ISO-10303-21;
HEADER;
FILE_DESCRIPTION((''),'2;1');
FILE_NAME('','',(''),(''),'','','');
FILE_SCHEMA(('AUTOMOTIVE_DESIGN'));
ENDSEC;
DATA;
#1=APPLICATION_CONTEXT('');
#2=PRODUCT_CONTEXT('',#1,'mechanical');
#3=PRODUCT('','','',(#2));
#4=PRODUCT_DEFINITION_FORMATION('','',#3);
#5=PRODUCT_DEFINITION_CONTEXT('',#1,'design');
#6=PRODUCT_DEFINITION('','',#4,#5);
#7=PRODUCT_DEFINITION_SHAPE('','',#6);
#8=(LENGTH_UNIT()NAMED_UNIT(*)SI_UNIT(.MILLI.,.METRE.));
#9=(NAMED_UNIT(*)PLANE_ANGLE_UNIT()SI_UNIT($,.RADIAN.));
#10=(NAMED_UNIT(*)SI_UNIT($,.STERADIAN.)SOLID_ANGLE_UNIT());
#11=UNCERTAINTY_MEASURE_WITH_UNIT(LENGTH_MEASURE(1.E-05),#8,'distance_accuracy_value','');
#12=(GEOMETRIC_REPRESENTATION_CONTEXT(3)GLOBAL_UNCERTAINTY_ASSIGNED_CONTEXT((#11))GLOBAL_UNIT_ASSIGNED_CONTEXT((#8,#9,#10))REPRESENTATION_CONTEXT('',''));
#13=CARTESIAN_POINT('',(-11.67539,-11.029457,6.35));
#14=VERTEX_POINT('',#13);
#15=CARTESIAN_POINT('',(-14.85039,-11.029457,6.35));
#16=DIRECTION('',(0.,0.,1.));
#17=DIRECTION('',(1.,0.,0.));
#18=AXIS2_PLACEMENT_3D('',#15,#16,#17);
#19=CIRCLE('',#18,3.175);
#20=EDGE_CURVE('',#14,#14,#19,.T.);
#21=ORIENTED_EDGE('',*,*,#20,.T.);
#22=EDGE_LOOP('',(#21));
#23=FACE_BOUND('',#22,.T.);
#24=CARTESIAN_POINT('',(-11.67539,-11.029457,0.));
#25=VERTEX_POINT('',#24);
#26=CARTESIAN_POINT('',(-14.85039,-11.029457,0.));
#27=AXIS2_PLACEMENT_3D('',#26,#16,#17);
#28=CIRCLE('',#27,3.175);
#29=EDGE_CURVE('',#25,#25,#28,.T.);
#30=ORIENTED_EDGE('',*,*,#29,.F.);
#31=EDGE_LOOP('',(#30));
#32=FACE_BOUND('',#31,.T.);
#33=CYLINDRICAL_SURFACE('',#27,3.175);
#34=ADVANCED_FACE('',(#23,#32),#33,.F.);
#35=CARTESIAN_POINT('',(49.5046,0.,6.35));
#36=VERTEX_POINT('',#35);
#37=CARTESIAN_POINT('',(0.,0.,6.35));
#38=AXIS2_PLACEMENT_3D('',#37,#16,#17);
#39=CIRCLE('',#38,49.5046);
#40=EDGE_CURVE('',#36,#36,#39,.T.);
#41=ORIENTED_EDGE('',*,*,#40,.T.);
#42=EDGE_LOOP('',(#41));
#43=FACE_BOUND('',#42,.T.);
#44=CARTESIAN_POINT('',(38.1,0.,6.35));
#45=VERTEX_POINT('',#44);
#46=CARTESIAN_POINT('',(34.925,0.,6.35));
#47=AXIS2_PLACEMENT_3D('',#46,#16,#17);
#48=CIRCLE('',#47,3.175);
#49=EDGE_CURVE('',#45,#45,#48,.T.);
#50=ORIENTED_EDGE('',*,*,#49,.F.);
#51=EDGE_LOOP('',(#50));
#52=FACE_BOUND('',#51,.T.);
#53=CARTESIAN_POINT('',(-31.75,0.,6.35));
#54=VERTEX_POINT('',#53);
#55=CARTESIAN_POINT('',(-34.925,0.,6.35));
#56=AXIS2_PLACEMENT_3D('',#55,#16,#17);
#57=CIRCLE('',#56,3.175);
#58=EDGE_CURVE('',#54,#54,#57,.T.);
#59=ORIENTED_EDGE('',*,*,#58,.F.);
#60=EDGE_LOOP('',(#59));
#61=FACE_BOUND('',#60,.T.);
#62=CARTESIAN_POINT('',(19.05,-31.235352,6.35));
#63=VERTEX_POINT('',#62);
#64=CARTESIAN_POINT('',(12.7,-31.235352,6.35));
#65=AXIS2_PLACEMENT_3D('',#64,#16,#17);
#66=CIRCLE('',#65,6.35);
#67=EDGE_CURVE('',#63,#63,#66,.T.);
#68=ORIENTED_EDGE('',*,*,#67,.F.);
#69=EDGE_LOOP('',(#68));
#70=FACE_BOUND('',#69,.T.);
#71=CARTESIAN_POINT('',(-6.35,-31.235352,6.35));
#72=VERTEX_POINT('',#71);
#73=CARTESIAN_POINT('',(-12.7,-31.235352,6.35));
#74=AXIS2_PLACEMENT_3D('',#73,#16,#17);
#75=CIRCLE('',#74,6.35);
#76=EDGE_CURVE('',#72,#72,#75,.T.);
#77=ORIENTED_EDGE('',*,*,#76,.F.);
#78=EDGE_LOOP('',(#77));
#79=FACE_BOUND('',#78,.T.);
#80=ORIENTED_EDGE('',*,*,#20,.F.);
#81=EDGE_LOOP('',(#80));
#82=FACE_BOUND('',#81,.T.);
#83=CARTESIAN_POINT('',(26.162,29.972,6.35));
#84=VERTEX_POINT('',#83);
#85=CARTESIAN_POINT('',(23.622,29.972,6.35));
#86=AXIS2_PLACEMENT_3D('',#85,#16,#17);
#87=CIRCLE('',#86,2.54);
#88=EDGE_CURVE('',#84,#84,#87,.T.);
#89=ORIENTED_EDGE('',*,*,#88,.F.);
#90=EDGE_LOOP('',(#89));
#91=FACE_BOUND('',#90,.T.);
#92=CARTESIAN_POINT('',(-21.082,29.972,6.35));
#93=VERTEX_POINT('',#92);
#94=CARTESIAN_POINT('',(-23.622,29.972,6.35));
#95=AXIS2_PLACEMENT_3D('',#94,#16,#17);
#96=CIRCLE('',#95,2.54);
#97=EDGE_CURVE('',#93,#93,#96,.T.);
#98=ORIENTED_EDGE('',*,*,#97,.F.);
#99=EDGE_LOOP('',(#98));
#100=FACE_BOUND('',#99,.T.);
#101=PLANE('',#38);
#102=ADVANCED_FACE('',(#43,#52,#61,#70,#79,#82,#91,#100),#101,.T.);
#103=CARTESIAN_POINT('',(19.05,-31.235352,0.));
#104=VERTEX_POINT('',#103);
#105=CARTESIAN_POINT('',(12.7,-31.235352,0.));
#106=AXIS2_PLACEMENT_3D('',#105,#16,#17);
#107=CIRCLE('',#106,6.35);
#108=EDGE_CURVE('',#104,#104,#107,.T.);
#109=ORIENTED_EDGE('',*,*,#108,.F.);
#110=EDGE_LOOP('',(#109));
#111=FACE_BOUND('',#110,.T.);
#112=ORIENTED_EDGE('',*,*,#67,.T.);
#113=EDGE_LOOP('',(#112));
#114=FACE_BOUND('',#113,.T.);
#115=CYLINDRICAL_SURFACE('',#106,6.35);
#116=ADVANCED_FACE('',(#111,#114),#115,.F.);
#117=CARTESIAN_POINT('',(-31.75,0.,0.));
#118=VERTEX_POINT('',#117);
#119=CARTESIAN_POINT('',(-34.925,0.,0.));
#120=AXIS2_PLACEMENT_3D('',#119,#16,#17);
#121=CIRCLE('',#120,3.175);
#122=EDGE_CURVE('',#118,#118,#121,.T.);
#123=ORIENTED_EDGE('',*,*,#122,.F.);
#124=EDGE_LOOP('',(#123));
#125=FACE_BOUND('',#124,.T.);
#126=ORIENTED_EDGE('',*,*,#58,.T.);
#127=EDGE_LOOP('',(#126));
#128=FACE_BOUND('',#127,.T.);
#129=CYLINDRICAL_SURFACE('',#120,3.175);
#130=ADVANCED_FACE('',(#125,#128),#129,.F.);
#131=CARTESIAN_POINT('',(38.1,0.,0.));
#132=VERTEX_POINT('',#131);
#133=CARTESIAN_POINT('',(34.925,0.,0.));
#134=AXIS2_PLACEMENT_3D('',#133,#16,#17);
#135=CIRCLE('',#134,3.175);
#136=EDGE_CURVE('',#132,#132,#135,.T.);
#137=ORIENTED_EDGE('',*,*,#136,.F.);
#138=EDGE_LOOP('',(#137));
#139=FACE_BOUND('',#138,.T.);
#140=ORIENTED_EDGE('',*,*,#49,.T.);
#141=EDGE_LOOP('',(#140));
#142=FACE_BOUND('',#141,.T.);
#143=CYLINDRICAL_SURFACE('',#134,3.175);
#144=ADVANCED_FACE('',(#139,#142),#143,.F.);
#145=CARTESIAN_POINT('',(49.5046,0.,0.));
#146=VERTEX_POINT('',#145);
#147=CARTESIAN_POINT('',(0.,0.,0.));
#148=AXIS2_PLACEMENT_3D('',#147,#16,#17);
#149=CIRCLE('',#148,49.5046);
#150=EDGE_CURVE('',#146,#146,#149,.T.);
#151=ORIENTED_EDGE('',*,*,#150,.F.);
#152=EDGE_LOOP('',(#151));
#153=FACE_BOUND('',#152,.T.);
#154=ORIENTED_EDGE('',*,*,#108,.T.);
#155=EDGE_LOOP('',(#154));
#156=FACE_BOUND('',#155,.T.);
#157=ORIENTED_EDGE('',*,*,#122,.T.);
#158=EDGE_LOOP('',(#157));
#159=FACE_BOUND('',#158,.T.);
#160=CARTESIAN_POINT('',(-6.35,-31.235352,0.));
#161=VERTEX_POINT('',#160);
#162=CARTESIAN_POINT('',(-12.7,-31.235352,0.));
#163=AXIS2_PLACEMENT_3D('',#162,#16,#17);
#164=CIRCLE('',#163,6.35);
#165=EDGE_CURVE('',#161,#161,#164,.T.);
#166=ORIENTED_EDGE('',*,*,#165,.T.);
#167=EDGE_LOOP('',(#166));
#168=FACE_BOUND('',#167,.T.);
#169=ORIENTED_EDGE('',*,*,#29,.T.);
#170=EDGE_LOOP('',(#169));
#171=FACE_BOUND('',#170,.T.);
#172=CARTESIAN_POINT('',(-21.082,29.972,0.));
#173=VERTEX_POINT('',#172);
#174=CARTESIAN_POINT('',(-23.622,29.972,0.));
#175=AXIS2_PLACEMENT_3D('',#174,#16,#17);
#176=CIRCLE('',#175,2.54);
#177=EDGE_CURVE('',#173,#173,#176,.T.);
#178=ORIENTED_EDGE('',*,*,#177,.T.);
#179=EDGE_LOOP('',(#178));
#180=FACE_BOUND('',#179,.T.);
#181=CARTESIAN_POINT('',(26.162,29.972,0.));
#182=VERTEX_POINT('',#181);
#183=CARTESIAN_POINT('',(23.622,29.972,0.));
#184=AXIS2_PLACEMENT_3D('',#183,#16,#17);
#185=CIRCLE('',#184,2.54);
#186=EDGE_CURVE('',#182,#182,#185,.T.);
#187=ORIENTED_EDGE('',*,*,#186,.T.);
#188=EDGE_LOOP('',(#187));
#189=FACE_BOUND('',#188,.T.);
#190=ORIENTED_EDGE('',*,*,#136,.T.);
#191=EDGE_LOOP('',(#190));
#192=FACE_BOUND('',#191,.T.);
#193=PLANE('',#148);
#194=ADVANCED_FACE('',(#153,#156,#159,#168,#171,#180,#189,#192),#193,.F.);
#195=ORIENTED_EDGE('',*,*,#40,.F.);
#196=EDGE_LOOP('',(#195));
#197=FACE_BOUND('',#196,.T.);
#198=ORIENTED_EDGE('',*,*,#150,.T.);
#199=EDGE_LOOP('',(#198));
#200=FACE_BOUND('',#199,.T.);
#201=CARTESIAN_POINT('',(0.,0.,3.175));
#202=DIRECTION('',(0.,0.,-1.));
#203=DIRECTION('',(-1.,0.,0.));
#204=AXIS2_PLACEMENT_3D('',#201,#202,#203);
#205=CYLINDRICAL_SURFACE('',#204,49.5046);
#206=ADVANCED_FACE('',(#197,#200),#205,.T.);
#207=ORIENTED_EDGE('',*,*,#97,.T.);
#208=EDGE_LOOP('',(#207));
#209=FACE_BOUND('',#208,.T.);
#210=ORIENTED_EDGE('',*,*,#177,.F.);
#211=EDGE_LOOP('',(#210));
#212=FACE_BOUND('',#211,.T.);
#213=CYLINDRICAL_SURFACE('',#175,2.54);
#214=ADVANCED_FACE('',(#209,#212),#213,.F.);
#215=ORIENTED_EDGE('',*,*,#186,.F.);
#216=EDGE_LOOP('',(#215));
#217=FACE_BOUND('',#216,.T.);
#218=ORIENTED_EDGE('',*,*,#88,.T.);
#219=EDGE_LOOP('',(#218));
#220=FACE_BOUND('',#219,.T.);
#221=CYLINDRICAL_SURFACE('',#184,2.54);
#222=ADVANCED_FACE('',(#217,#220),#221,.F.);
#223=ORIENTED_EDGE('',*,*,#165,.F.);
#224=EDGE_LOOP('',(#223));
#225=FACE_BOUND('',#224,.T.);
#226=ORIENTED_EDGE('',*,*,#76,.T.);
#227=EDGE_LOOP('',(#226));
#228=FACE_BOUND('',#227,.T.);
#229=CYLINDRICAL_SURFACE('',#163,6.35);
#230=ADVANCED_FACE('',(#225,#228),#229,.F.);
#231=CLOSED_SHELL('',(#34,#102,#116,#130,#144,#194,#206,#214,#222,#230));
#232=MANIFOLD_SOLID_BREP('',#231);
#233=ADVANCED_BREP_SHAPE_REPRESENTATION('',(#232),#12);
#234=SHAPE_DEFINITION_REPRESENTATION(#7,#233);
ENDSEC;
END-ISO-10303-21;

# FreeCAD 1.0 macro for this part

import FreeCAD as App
import Part
import Sketcher

V = App.Vector
Q = App.Units.Quantity

doc = App.newDocument("Part")
params = doc.addObject("Spreadsheet::Sheet", "Params")
for row, (alias, value) in enumerate([
    ("sketch1_diameter", "3.898 in"),
    ("pad1_length", "0.125 in"),
    ("sketch2_diameter", "3.755 in"),
    ("pad2_length", "0.125 in"),
    ("sketch3_diameter", "0.5 in"),
    ("sketch3_diameter2", "0.2 in"),
    ("sketch3_diameter3", "0.25 in"),
    ("sketch3_diameter4", "0.875 in"),
    ("sketch4_diameter", "3.898 in"),
    ("sketch4_diameter2", "3.755 in"),
    ("pad3_length", "0.125 in"),
    ("sketch5_diameter", "0.875 in"),
    ("pad4_length", "0.25 in"),
    ("sketch6_diameter", "0.2 in"),
    ("pad5_length", "0.25 in"),
], start=1):
    params.set(f"A{row}", alias)
    params.set(f"B{row}", "=" + value)
    params.setAlias(f"B{row}", alias)

body = doc.addObject("PartDesign::Body", "Body")

# Sketch on XY plane
sketch1 = body.newObject("Sketcher::SketchObject", "Sketch")
sketch1.AttachmentSupport = (doc.getObject("XY_Plane"), [""])
sketch1.MapMode = "FlatFace"
sketch1.addGeometry(Part.Circle(V(0, 0, 0), V(0, 0, 1), 50), False)
sketch1.addConstraint(Sketcher.Constraint("Coincident", 0, 3, -1, 1))
sketch1.addConstraint(Sketcher.Constraint("Diameter", 0, Q("3.898 in")))
sketch1.setExpression("Constraints[1]", "Params.sketch1_diameter")
pad1 = body.newObject("PartDesign::Pad", "Pad")
pad1.Profile = sketch1
pad1.setExpression("Length", "Params.pad1_length")

# Sketch on XY plane
sketch2 = body.newObject("Sketcher::SketchObject", "Sketch001")
sketch2.AttachmentSupport = (doc.getObject("XY_Plane"), [""])
sketch2.MapMode = "FlatFace"
sketch2.AttachmentOffset = App.Placement(V(0, 0, 0.125 * 25.4), App.Rotation())
sketch2.addGeometry(Part.Circle(V(0, 0, 0), V(0, 0, 1), 48), False)
sketch2.addConstraint(Sketcher.Constraint("Coincident", 0, 3, -1, 1))
sketch2.addConstraint(Sketcher.Constraint("Diameter", 0, Q("3.755 in")))
sketch2.setExpression("Constraints[1]", "Params.sketch2_diameter")
pad2 = body.newObject("PartDesign::Pad", "Pad001")
pad2.Profile = sketch2
pad2.setExpression("Length", "Params.pad2_length")

# Sketch on XY plane
sketch3 = body.newObject("Sketcher::SketchObject", "Sketch002")
sketch3.AttachmentSupport = (doc.getObject("XY_Plane"), [""])
sketch3.MapMode = "FlatFace"
sketch3.AttachmentOffset = App.Placement(V(0, 0, 0.25 * 25.4), App.Rotation())
sketch3.addGeometry(Part.Circle(V(-12.7, -31.2, 0), V(0, 0, 1), 6.3), False)
sketch3.addGeometry(Part.Circle(V(12.7, -31.2, 0), V(0, 0, 1), 6.3), False)
sketch3.addGeometry(Part.Circle(V(-34.9, 0, 0), V(0, 0, 1), 3.2), False)
sketch3.addGeometry(Part.Circle(V(34.9, 0, 0), V(0, 0, 1), 3.2), False)
sketch3.addGeometry(Part.Circle(V(0, 6.3, 0), V(0, 0, 1), 11.1), False)
sketch3.addGeometry(Part.Circle(V(-14.9, -11, 0), V(0, 0, 1), 3.2), False)
sketch3.addGeometry(Part.Circle(V(-23.6, 30, 0), V(0, 0, 1), 2.5), False)
sketch3.addGeometry(Part.Circle(V(23.6, 30, 0), V(0, 0, 1), 2.5), False)
sketch3.addGeometry(Part.Circle(V(23.6, -17.3, 0), V(0, 0, 1), 2.5), False)
sketch3.addGeometry(Part.Circle(V(-23.6, -17.3, 0), V(0, 0, 1), 2.5), False)
sketch3.addConstraint(Sketcher.Constraint("Equal", 0, 1))
sketch3.addConstraint(Sketcher.Constraint("Equal", 2, 3))
sketch3.addConstraint(Sketcher.Constraint("Equal", 3, 5))
sketch3.addConstraint(Sketcher.Constraint("Equal", 6, 7))
sketch3.addConstraint(Sketcher.Constraint("Equal", 7, 8))
sketch3.addConstraint(Sketcher.Constraint("Equal", 8, 9))
sketch3.addConstraint(Sketcher.Constraint("Symmetric", 2, 3, 3, 3, -1, 1))
sketch3.addConstraint(Sketcher.Constraint("Symmetric", 0, 3, 1, 3, -2))
sketch3.addConstraint(Sketcher.Constraint("Symmetric", 6, 3, 7, 3, -2))
sketch3.addConstraint(Sketcher.Constraint("Symmetric", 8, 3, 9, 3, -2))
sketch3.addConstraint(Sketcher.Constraint("PointOnObject", 2, 3, -1))
sketch3.addConstraint(Sketcher.Constraint("PointOnObject", 4, 3, -2))
sketch3.addConstraint(Sketcher.Constraint("Vertical", 7, 3, 8, 3))
sketch3.addConstraint(Sketcher.Constraint("Diameter", 0, Q("0.5 in")))
sketch3.addConstraint(Sketcher.Constraint("Diameter", 6, Q("0.2 in")))
sketch3.addConstraint(Sketcher.Constraint("Diameter", 2, Q("0.25 in")))
sketch3.addConstraint(Sketcher.Constraint("Diameter", 4, Q("0.875 in")))
sketch3.addConstraint(Sketcher.Constraint("DistanceX", 0, 3, 1, 3, Q("1 in")))
sketch3.addConstraint(Sketcher.Constraint("DistanceY", -1, 1, 4, 3, Q("0.25 in")))
sketch3.addConstraint(Sketcher.Constraint("DistanceX", 6, 3, -1, 1, Q("0.93 in")))
sketch3.addConstraint(Sketcher.Constraint("DistanceY", -1, 1, 6, 3, Q("1.18 in")))
sketch3.addConstraint(Sketcher.Constraint("DistanceY", 8, 3, -1, 1, Q("0.68 in")))
sketch3.addConstraint(Sketcher.Constraint("DistanceX", 2, 3, 3, 3, Q("2.75 in")))
sketch3.addConstraint(Sketcher.Constraint("DistanceX", 5, 3, -1, 1, Q("14.85039 mm")))
sketch3.addConstraint(Sketcher.Constraint("DistanceY", 0, 3, -1, 1, Q("31.235352 mm")))
sketch3.addConstraint(Sketcher.Constraint("DistanceY", 5, 3, -1, 1, Q("11.029457 mm")))
sketch3.setExpression("Constraints[13]", "Params.sketch3_diameter")
sketch3.setExpression("Constraints[14]", "Params.sketch3_diameter2")
sketch3.setExpression("Constraints[15]", "Params.sketch3_diameter3")
sketch3.setExpression("Constraints[16]", "Params.sketch3_diameter4")
pocket1 = body.newObject("PartDesign::Pocket", "Pocket")
pocket1.Profile = sketch3
pocket1.Type = "ThroughAll"

# Sketch on XY plane
sketch4 = body.newObject("Sketcher::SketchObject", "Sketch003")
sketch4.AttachmentSupport = (doc.getObject("XY_Plane"), [""])
sketch4.MapMode = "FlatFace"
sketch4.AttachmentOffset = App.Placement(V(0, 0, 0.125 * 25.4), App.Rotation())
sketch4.addGeometry(Part.Circle(V(0, 0, 0), V(0, 0, 1), 50), False)
sketch4.addGeometry(Part.Circle(V(0, 0, 0), V(0, 0, 1), 48), False)
sketch4.addConstraint(Sketcher.Constraint("Coincident", 0, 3, -1, 1))
sketch4.addConstraint(Sketcher.Constraint("Coincident", 1, 3, -1, 1))
sketch4.addConstraint(Sketcher.Constraint("Diameter", 0, Q("3.898 in")))
sketch4.addConstraint(Sketcher.Constraint("Diameter", 1, Q("3.755 in")))
sketch4.setExpression("Constraints[2]", "Params.sketch4_diameter")
sketch4.setExpression("Constraints[3]", "Params.sketch4_diameter2")
pad3 = body.newObject("PartDesign::Pad", "Pad002")
pad3.Profile = sketch4
pad3.setExpression("Length", "Params.pad3_length")

# Sketch on XY plane
sketch5 = body.newObject("Sketcher::SketchObject", "Sketch004")
sketch5.AttachmentSupport = (doc.getObject("XY_Plane"), [""])
sketch5.MapMode = "FlatFace"
sketch5.AttachmentOffset = App.Placement(V(0, 0, 0.25 * 25.4), App.Rotation())
sketch5.addGeometry(Part.Circle(V(0, 6, 0), V(0, 0, 1), 11), False)
sketch5.addConstraint(Sketcher.Constraint("PointOnObject", 0, 3, -2))
sketch5.addConstraint(Sketcher.Constraint("Diameter", 0, Q("0.875 in")))
sketch5.addConstraint(Sketcher.Constraint("DistanceY", -1, 1, 0, 3, Q("0.25 in")))
sketch5.setExpression("Constraints[1]", "Params.sketch5_diameter")
pad4 = body.newObject("PartDesign::Pad", "Pad003")
pad4.Profile = sketch5
pad4.setExpression("Length", "Params.pad4_length")
pad4.Reversed = True

# Sketch on XY plane
sketch6 = body.newObject("Sketcher::SketchObject", "Sketch005")
sketch6.AttachmentSupport = (doc.getObject("XY_Plane"), [""])
sketch6.MapMode = "FlatFace"
sketch6.AttachmentOffset = App.Placement(V(0, 0, 0.25 * 25.4), App.Rotation())
sketch6.addGeometry(Part.Circle(V(-23.6, -17.3, 0), V(0, 0, 1), 2.5), False)
sketch6.addGeometry(Part.Circle(V(23.6, -17.3, 0), V(0, 0, 1), 2.5), False)
sketch6.addConstraint(Sketcher.Constraint("Equal", 0, 1))
sketch6.addConstraint(Sketcher.Constraint("Symmetric", 0, 3, 1, 3, -2))
sketch6.addConstraint(Sketcher.Constraint("Diameter", 0, Q("0.2 in")))
sketch6.addConstraint(Sketcher.Constraint("DistanceX", 0, 3, -1, 1, Q("0.93 in")))
sketch6.addConstraint(Sketcher.Constraint("DistanceY", 0, 3, -1, 1, Q("0.68 in")))
sketch6.setExpression("Constraints[2]", "Params.sketch6_diameter")
pad5 = body.newObject("PartDesign::Pad", "Pad004")
pad5.Profile = sketch6
pad5.setExpression("Length", "Params.pad5_length")
pad5.Reversed = True

doc.recompute()
